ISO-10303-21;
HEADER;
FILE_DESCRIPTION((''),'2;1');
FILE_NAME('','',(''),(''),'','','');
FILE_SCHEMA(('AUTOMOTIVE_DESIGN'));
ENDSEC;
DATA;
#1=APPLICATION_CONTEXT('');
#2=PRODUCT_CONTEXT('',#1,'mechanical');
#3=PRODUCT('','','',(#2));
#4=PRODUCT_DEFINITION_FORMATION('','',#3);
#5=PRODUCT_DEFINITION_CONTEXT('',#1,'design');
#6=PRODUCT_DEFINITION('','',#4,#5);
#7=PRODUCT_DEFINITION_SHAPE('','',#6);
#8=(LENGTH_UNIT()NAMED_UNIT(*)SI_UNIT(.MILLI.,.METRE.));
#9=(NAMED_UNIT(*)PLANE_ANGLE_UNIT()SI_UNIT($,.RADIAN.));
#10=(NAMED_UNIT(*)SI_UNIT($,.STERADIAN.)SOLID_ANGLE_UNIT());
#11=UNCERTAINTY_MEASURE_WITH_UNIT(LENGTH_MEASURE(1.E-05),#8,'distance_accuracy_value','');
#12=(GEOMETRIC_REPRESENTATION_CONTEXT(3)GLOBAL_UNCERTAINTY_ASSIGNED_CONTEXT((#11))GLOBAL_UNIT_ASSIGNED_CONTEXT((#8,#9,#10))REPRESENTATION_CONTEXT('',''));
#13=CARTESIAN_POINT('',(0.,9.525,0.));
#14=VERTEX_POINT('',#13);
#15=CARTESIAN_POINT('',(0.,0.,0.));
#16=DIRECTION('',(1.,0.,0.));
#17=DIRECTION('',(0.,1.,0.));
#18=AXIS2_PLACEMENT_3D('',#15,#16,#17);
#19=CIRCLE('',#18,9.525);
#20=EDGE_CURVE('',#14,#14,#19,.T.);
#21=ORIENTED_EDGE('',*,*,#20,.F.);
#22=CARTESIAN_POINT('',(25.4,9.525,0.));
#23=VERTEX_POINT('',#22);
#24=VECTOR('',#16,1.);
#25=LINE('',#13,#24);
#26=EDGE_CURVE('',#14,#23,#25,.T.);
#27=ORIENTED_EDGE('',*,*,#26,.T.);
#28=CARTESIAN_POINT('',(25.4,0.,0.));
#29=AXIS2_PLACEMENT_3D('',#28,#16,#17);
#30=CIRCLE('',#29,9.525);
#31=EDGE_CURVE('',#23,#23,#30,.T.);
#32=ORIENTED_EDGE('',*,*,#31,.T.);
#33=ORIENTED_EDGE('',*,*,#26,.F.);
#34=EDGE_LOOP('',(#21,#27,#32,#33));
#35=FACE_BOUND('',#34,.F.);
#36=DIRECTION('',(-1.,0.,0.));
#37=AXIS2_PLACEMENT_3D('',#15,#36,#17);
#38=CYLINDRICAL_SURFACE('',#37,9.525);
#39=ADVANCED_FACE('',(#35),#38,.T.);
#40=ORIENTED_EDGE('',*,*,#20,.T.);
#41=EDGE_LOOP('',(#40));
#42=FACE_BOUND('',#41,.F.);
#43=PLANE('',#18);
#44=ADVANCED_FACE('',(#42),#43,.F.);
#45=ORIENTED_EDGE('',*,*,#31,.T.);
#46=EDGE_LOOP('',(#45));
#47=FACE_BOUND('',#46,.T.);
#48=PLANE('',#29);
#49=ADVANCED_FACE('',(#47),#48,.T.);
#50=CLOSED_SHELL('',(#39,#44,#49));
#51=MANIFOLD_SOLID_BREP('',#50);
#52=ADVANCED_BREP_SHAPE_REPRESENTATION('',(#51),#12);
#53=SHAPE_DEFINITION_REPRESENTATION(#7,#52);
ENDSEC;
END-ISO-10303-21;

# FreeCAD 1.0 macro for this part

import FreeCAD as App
import Part
import Sketcher
Q = App.Units.Quantity

doc = App.newDocument("Part")
params = doc.addObject("Spreadsheet::Sheet", "Params")
for row, (alias, value) in enumerate([
    ("sketch1_diameter", "0.75 in"),
    ("pad1_length", "1 in"),
], start=1):
    params.set(f"A{row}", alias)
    params.set(f"B{row}", "=" + value)
    params.setAlias(f"B{row}", alias)

body = doc.addObject("PartDesign::Body", "Body")

# Sketch on YZ plane
sketch1 = body.newObject("Sketcher::SketchObject", "Sketch")
sketch1.AttachmentSupport = (doc.getObject("YZ_Plane"), [""])
sketch1.MapMode = "FlatFace"
sketch1.addGeometry(Part.Circle(App.Vector(0, 0, 0), App.Vector(0, 0, 1), 10), False)
sketch1.addConstraint(Sketcher.Constraint("Coincident", 0, 3, -1, 1))
sketch1.addConstraint(Sketcher.Constraint("Diameter", 0, Q("0.75 in")))
sketch1.setExpression("Constraints[1]", "Params.sketch1_diameter")
pad1 = body.newObject("PartDesign::Pad", "Pad")
pad1.Profile = sketch1
pad1.setExpression("Length", "Params.pad1_length")

doc.recompute()
